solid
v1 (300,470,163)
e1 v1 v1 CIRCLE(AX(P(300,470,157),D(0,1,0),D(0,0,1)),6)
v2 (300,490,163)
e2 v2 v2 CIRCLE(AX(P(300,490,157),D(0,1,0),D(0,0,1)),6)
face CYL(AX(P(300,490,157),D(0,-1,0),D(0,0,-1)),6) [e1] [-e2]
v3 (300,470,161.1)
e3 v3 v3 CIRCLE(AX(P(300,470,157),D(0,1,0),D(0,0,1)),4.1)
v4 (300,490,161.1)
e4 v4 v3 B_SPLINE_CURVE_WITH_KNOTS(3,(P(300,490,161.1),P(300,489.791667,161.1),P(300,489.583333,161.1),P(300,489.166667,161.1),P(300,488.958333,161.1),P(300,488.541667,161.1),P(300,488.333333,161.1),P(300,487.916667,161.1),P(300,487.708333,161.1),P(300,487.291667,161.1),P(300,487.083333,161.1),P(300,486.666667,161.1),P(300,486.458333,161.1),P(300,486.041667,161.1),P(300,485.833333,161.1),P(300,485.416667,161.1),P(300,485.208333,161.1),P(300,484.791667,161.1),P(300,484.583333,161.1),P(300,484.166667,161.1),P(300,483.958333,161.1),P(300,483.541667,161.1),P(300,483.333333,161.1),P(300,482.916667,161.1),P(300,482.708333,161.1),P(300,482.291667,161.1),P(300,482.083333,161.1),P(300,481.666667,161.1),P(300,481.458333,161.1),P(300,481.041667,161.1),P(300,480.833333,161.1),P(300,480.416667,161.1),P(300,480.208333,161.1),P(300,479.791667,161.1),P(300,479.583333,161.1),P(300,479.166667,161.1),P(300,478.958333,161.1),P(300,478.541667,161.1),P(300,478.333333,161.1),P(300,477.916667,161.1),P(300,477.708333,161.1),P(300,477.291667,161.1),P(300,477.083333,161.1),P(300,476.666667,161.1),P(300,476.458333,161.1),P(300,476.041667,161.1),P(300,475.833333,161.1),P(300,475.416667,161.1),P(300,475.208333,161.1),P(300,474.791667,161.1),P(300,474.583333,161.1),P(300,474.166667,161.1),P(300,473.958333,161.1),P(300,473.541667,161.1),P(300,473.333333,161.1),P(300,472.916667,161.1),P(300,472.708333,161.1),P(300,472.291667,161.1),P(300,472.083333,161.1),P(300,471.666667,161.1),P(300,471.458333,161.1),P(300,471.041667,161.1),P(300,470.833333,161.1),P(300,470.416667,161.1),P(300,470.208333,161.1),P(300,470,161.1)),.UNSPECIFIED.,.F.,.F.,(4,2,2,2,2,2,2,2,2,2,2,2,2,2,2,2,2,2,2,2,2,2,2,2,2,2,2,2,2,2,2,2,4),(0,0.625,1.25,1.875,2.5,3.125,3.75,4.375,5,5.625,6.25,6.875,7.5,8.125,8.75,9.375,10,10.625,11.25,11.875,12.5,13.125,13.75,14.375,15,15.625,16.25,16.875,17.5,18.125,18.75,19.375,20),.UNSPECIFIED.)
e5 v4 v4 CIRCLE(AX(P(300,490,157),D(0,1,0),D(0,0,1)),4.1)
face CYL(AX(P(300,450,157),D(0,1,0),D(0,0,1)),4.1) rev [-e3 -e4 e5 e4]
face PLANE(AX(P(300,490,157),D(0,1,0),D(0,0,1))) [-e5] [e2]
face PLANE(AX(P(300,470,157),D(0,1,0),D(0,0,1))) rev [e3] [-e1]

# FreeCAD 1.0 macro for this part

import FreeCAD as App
import Part
import Sketcher
Q = App.Units.Quantity

doc = App.newDocument("Part")
body = doc.addObject("PartDesign::Body", "Body")

sketch1 = body.newObject("Sketcher::SketchObject", "Sketch")
sketch1.AttachmentSupport = (doc.getObject("XZ_Plane"), [""])
sketch1.MapMode = "FlatFace"
sketch1.AttachmentOffset = App.Placement(App.Vector(0, 0, -470), App.Rotation())
sketch1.addGeometry(Part.Circle(App.Vector(300, 157, 0), App.Vector(0, 0, 1), 6), False)
sketch1.addConstraint([
    Sketcher.Constraint("Diameter", 0, Q("12 mm")),
    Sketcher.Constraint("DistanceX", -1, 1, 0, 3, Q("300 mm")),
    Sketcher.Constraint("DistanceY", -1, 1, 0, 3, Q("157 mm")),
])
pad1 = body.newObject("PartDesign::Pad", "Pad")
pad1.Profile = sketch1
pad1.Length = 20
pad1.Reversed = True

sketch2 = body.newObject("Sketcher::SketchObject", "Sketch001")
sketch2.AttachmentSupport = (doc.getObject("XZ_Plane"), [""])
sketch2.MapMode = "FlatFace"
sketch2.AttachmentOffset = App.Placement(App.Vector(0, 0, -490), App.Rotation())
sketch2.addGeometry(Part.Circle(App.Vector(300, 157, 0), App.Vector(0, 0, 1), 4.1), False)
sketch2.addConstraint([
    Sketcher.Constraint("Diameter", 0, Q("8.2 mm")),
    Sketcher.Constraint("DistanceX", -1, 1, 0, 3, Q("300 mm")),
    Sketcher.Constraint("DistanceY", -1, 1, 0, 3, Q("157 mm")),
])
pocket1 = body.newObject("PartDesign::Pocket", "Pocket")
pocket1.Profile = sketch2
pocket1.Length = 40
pocket1.Reversed = True

doc.recompute()
